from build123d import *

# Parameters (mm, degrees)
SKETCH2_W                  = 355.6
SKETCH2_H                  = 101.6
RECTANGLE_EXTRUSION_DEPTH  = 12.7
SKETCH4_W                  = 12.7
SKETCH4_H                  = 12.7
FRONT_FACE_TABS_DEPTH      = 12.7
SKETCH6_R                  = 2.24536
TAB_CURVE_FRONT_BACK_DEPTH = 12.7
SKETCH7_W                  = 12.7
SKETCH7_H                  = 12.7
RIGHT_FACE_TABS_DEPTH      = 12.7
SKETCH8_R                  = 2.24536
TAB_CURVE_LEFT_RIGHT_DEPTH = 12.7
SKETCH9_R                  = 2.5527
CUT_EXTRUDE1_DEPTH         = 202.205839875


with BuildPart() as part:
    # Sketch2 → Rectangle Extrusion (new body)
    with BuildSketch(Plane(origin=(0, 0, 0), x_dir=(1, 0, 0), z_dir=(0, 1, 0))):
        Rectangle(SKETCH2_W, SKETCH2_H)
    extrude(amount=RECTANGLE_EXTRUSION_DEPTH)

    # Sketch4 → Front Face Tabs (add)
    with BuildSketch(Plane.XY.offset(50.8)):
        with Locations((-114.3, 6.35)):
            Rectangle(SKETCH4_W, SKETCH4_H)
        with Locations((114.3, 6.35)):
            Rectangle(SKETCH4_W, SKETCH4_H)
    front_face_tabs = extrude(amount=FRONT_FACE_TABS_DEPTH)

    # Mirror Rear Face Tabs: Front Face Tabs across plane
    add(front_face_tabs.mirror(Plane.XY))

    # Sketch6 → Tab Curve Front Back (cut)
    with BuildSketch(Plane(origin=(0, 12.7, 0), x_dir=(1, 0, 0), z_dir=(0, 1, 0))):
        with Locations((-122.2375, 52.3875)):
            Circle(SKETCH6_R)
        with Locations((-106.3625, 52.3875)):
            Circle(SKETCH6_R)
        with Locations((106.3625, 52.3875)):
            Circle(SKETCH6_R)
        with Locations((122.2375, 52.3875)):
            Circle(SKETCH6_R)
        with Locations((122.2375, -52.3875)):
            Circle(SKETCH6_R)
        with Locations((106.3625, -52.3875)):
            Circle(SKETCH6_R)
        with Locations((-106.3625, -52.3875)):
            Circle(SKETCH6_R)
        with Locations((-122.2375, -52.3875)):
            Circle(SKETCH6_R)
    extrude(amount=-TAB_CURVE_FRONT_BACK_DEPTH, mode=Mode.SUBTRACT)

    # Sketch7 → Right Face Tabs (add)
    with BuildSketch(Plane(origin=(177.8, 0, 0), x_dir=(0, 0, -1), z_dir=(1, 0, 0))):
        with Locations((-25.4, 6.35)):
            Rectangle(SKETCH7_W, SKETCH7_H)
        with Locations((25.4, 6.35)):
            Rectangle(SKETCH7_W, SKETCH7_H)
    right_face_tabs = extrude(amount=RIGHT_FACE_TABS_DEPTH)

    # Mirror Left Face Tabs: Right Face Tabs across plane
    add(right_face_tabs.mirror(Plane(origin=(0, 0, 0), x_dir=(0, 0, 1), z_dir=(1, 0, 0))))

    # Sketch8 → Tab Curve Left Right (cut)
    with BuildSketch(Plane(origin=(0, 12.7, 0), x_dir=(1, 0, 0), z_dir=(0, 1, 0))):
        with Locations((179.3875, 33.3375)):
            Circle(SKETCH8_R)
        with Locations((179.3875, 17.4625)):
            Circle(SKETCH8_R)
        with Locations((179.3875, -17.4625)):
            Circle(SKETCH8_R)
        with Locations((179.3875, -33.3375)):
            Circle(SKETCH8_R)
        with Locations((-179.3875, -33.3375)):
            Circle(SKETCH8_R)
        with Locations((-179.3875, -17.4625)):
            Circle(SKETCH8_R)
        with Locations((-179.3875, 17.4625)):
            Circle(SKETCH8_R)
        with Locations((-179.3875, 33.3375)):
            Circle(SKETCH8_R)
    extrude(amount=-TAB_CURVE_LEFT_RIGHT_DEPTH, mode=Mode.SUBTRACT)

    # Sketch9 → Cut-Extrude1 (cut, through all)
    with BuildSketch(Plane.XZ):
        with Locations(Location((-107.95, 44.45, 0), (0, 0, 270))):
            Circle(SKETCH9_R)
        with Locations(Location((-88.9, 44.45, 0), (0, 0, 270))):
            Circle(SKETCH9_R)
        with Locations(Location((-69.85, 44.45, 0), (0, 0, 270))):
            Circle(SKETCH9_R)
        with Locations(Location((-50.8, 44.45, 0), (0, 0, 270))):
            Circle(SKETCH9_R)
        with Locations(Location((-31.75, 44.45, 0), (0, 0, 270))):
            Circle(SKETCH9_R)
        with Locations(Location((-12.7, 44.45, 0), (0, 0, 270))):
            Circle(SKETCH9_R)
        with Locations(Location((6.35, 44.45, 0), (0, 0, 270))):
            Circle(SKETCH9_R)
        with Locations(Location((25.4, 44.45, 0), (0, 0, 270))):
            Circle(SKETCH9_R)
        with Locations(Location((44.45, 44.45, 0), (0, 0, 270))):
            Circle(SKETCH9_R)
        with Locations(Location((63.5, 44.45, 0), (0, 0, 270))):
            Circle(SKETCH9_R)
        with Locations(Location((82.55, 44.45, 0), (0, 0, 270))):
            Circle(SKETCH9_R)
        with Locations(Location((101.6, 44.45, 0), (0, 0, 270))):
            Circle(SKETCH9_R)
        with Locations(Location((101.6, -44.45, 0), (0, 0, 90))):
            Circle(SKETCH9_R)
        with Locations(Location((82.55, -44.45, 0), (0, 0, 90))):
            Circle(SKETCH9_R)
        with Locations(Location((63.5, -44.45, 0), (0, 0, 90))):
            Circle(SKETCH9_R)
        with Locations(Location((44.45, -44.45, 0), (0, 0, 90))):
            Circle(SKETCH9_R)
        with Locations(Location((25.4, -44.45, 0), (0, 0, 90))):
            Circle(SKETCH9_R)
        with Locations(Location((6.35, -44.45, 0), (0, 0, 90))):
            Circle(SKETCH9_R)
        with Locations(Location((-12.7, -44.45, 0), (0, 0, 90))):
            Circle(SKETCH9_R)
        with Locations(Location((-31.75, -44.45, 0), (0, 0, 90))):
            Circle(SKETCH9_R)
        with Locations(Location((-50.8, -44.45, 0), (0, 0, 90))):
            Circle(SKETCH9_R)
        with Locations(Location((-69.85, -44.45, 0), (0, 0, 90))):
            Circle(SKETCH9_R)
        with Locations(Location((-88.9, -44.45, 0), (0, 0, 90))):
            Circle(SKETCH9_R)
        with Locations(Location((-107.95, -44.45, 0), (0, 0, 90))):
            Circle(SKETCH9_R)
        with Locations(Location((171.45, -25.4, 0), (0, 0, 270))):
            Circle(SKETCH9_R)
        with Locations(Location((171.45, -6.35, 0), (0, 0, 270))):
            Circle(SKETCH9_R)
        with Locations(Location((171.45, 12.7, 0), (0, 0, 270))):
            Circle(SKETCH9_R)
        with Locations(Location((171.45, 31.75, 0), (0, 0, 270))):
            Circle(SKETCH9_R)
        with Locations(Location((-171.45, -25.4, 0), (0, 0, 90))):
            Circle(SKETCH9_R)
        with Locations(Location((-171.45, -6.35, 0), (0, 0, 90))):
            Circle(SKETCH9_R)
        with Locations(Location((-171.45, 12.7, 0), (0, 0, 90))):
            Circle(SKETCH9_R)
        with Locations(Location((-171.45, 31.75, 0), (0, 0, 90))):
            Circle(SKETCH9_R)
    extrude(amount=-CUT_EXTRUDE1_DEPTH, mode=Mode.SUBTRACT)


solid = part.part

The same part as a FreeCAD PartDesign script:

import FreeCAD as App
import Part
import Sketcher

V = App.Vector
Q = App.Units.Quantity


def add_polygon(sketch, points):
    """Adds a closed chain of lines whose ends are joined by coincident constraints."""
    first, n = sketch.GeometryCount, len(points)
    for a, b in zip(points, points[1:] + points[:1]):
        sketch.addGeometry(Part.LineSegment(App.Vector(*a, 0), App.Vector(*b, 0)), False)
    for i in range(n):
        sketch.addConstraint(Sketcher.Constraint("Coincident", first + i, 2, first + (i + 1) % n, 1))

doc = App.newDocument("Part")
params = doc.addObject("Spreadsheet::Sheet", "Params")
for row, (alias, value) in enumerate([
    ("sketch1_width", "14 in"),
    ("sketch1_height", "4 in"),
    ("pad1_length", "0.5 in"),
    ("sketch2_width", "0.5 in"),
    ("pad2_length", "0.5 in"),
    ("pocket1_length", "0.5 in"),
    ("sketch4_width", "0.5 in"),
    ("pad3_length", "0.5 in"),
    ("pocket2_length", "0.5 in"),
    ("sketch6_diameter", "0.201 in"),
], start=1):
    params.set(f"A{row}", alias)
    params.set(f"B{row}", "=" + value)
    params.setAlias(f"B{row}", alias)

body = doc.addObject("PartDesign::Body", "Body")

# Sketch on XZ plane
sketch1 = doc.addObject("Sketcher::SketchObject", "Sketch")
body.addObject(sketch1)
sketch1.AttachmentSupport = (doc.XZ_Plane, [""])
sketch1.MapMode = "FlatFace"
add_polygon(sketch1, [(-177.8, -50.8), (-177.8, 50.8), (177.8, 50.8), (177.8, -50.8)])  # lines 0-3
sketch1.addConstraint([
    Sketcher.Constraint("Vertical", 0),
    Sketcher.Constraint("Horizontal", 1),
    Sketcher.Constraint("Vertical", 2),
    Sketcher.Constraint("Horizontal", 3),
    Sketcher.Constraint("Symmetric", 0, 2, 2, 2, -1, 1),
    Sketcher.Constraint("DistanceX", 1, 1, 1, 2, Q("14 in")),
    Sketcher.Constraint("DistanceY", 0, 1, 0, 2, Q("4 in")),
])
sketch1.setExpression("Constraints[9]", "Params.sketch1_width")
sketch1.setExpression("Constraints[10]", "Params.sketch1_height")
pad1 = doc.addObject("PartDesign::Pad", "Pad")
body.addObject(pad1)
pad1.Profile = sketch1
pad1.setExpression("Length", "Params.pad1_length")
pad1.Reversed = True

# Sketch on XY plane
sketch2 = doc.addObject("Sketcher::SketchObject", "Sketch001")
body.addObject(sketch2)
sketch2.AttachmentSupport = (doc.XY_Plane, [""])
sketch2.MapMode = "FlatFace"
sketch2.AttachmentOffset = App.Placement(V(0, 0, 2 * 25.4), App.Rotation())
add_polygon(sketch2, [(-120.65, 12.7), (-120.65, 0), (-107.95, 0), (-107.95, 12.7)])  # lines 0-3
add_polygon(sketch2, [(107.95, 12.7), (107.95, 0), (120.65, 0), (120.65, 12.7)])  # lines 4-7
sketch2.addConstraint([
    Sketcher.Constraint("Vertical", 0),
    Sketcher.Constraint("Horizontal", 1),
    Sketcher.Constraint("Vertical", 2),
    Sketcher.Constraint("Horizontal", 3),
    Sketcher.Constraint("Vertical", 4),
    Sketcher.Constraint("Horizontal", 5),
    Sketcher.Constraint("Vertical", 6),
    Sketcher.Constraint("Horizontal", 7),
    Sketcher.Constraint("Symmetric", 1, 2, 4, 2, -1, 1),
    Sketcher.Constraint("Symmetric", 0, 2, 5, 2, -2),
    Sketcher.Constraint("Horizontal", 3, 2, 6, 2),
    Sketcher.Constraint("Equal", 7, 0),
    Sketcher.Constraint("DistanceX", 1, 1, 1, 2, Q("0.5 in")),
    Sketcher.Constraint("DistanceX", 0, 2, 4, 2, Q("9 in")),
])
sketch2.setExpression("Constraints[20]", "Params.sketch2_width")
pad2 = doc.addObject("PartDesign::Pad", "Pad001")
body.addObject(pad2)
pad2.Profile = sketch2
pad2.setExpression("Length", "Params.pad2_length")
doc.recompute()

mirrored = doc.addObject("PartDesign::Mirrored", "Mirrored")
body.addObject(mirrored)
mirrored.Originals = [pad2]
mirrored.MirrorPlane = (doc.XY_Plane, [""])
body.Tip = mirrored

# Sketch on XZ plane
sketch3 = doc.addObject("Sketcher::SketchObject", "Sketch002")
body.addObject(sketch3)
sketch3.AttachmentSupport = (doc.XZ_Plane, [""])
sketch3.MapMode = "FlatFace"
sketch3.AttachmentOffset = App.Placement(V(0, 0, -0.5 * 25.4), App.Rotation())
sketch3.addGeometry([
    Part.Circle(V(-122.2375, -52.3875, 0), V(0, 0, 1), 2.24536),  # 0
    Part.Circle(V(-106.3625, -52.3875, 0), V(0, 0, 1), 2.24536),  # 1
    Part.Circle(V(106.3625, -52.3875, 0), V(0, 0, 1), 2.24536),  # 2
    Part.Circle(V(122.2375, -52.3875, 0), V(0, 0, 1), 2.24536),  # 3
    Part.Circle(V(122.2375, 52.3875, 0), V(0, 0, 1), 2.24536),  # 4
    Part.Circle(V(106.3625, 52.3875, 0), V(0, 0, 1), 2.24536),  # 5
    Part.Circle(V(-106.3625, 52.3875, 0), V(0, 0, 1), 2.24536),  # 6
    Part.Circle(V(-122.2375, 52.3875, 0), V(0, 0, 1), 2.24536),  # 7
], False)
sketch3.addConstraint([
    Sketcher.Constraint("Equal", 0, 1),
    Sketcher.Constraint("Equal", 1, 2),
    Sketcher.Constraint("Equal", 2, 3),
    Sketcher.Constraint("Equal", 3, 4),
    Sketcher.Constraint("Equal", 4, 5),
    Sketcher.Constraint("Equal", 5, 6),
    Sketcher.Constraint("Equal", 6, 7),
    Sketcher.Constraint("Symmetric", 0, 3, 4, 3, -1, 1),
    Sketcher.Constraint("Symmetric", 1, 3, 5, 3, -1, 1),
    Sketcher.Constraint("Symmetric", 2, 3, 6, 3, -1, 1),
    Sketcher.Constraint("Symmetric", 3, 3, 7, 3, -1, 1),
    Sketcher.Constraint("Symmetric", 1, 3, 2, 3, -2),
    Sketcher.Constraint("Symmetric", 0, 3, 3, 3, -2),
    Sketcher.Constraint("Horizontal", 0, 3, 1, 3),
    Sketcher.Constraint("DistanceX", 0, 3, 2, 3, Q("9 in")),
    Sketcher.Constraint("Diameter", 0, Q("0.1768 in")),
    Sketcher.Constraint("DistanceX", 0, 3, -1, 1, Q("4.8125 in")),
    Sketcher.Constraint("DistanceY", 0, 3, -1, 1, Q("2.0625 in")),
])
pocket1 = doc.addObject("PartDesign::Pocket", "Pocket")
body.addObject(pocket1)
pocket1.Profile = sketch3
pocket1.setExpression("Length", "Params.pocket1_length")
pocket1.Reversed = True

# Sketch on YZ plane
sketch4 = doc.addObject("Sketcher::SketchObject", "Sketch003")
body.addObject(sketch4)
sketch4.AttachmentSupport = (doc.YZ_Plane, [""])
sketch4.MapMode = "FlatFace"
sketch4.AttachmentOffset = App.Placement(V(0, 0, 7 * 25.4), App.Rotation())
add_polygon(sketch4, [(12.7, 31.75), (0, 31.75), (0, 19.05), (12.7, 19.05)])  # lines 0-3
add_polygon(sketch4, [(12.7, -19.05), (0, -19.05), (0, -31.75), (12.7, -31.75)])  # lines 4-7
sketch4.addConstraint([
    Sketcher.Constraint("Horizontal", 0),
    Sketcher.Constraint("Vertical", 1),
    Sketcher.Constraint("Horizontal", 2),
    Sketcher.Constraint("Vertical", 3),
    Sketcher.Constraint("Horizontal", 4),
    Sketcher.Constraint("Vertical", 5),
    Sketcher.Constraint("Horizontal", 6),
    Sketcher.Constraint("Vertical", 7),
    Sketcher.Constraint("Symmetric", 1, 2, 4, 2, -1, 1),
    Sketcher.Constraint("Symmetric", 0, 2, 5, 2, -1),
    Sketcher.Constraint("Vertical", 3, 2, 6, 2),
    Sketcher.Constraint("Equal", 6, 1),
    Sketcher.Constraint("DistanceX", 0, 2, 0, 1, Q("0.5 in")),
    Sketcher.Constraint("DistanceY", 4, 2, 0, 2, Q("2 in")),
])
sketch4.setExpression("Constraints[20]", "Params.sketch4_width")
pad3 = doc.addObject("PartDesign::Pad", "Pad002")
body.addObject(pad3)
pad3.Profile = sketch4
pad3.setExpression("Length", "Params.pad3_length")
doc.recompute()

mirrored2 = doc.addObject("PartDesign::Mirrored", "Mirrored001")
body.addObject(mirrored2)
mirrored2.Originals = [pad3]
mirrored2.MirrorPlane = (doc.YZ_Plane, [""])
body.Tip = mirrored2

# Sketch on XZ plane
sketch5 = doc.addObject("Sketcher::SketchObject", "Sketch004")
body.addObject(sketch5)
sketch5.AttachmentSupport = (doc.XZ_Plane, [""])
sketch5.MapMode = "FlatFace"
sketch5.AttachmentOffset = App.Placement(V(0, 0, -0.5 * 25.4), App.Rotation())
sketch5.addGeometry([
    Part.Circle(V(179.3875, -33.3375, 0), V(0, 0, 1), 2.24536),  # 0
    Part.Circle(V(179.3875, -17.4625, 0), V(0, 0, 1), 2.24536),  # 1
    Part.Circle(V(179.3875, 17.4625, 0), V(0, 0, 1), 2.24536),  # 2
    Part.Circle(V(179.3875, 33.3375, 0), V(0, 0, 1), 2.24536),  # 3
    Part.Circle(V(-179.3875, 33.3375, 0), V(0, 0, 1), 2.24536),  # 4
    Part.Circle(V(-179.3875, 17.4625, 0), V(0, 0, 1), 2.24536),  # 5
    Part.Circle(V(-179.3875, -17.4625, 0), V(0, 0, 1), 2.24536),  # 6
    Part.Circle(V(-179.3875, -33.3375, 0), V(0, 0, 1), 2.24536),  # 7
], False)
sketch5.addConstraint([
    Sketcher.Constraint("Equal", 0, 1),
    Sketcher.Constraint("Equal", 1, 2),
    Sketcher.Constraint("Equal", 2, 3),
    Sketcher.Constraint("Equal", 3, 4),
    Sketcher.Constraint("Equal", 4, 5),
    Sketcher.Constraint("Equal", 5, 6),
    Sketcher.Constraint("Equal", 6, 7),
    Sketcher.Constraint("Symmetric", 0, 3, 4, 3, -1, 1),
    Sketcher.Constraint("Symmetric", 1, 3, 5, 3, -1, 1),
    Sketcher.Constraint("Symmetric", 2, 3, 6, 3, -1, 1),
    Sketcher.Constraint("Symmetric", 3, 3, 7, 3, -1, 1),
    Sketcher.Constraint("Symmetric", 3, 3, 4, 3, -2),
    Sketcher.Constraint("Symmetric", 2, 3, 5, 3, -2),
    Sketcher.Constraint("Vertical", 0, 3, 1, 3),
    Sketcher.Constraint("DistanceY", 0, 3, 2, 3, Q("2 in")),
    Sketcher.Constraint("Diameter", 0, Q("0.1768 in")),
    Sketcher.Constraint("DistanceX", -1, 1, 0, 3, Q("7.0625 in")),
    Sketcher.Constraint("DistanceY", 0, 3, -1, 1, Q("1.3125 in")),
])
pocket2 = doc.addObject("PartDesign::Pocket", "Pocket001")
body.addObject(pocket2)
pocket2.Profile = sketch5
pocket2.setExpression("Length", "Params.pocket2_length")
pocket2.Reversed = True

# Sketch on XZ plane
sketch6 = doc.addObject("Sketcher::SketchObject", "Sketch005")
body.addObject(sketch6)
sketch6.AttachmentSupport = (doc.XZ_Plane, [""])
sketch6.MapMode = "FlatFace"
sketch6.addGeometry([
    Part.Circle(V(-107.95, 44.45, 0), V(0, 0, 1), 2.5527),  # 0
    Part.Circle(V(-88.9, 44.45, 0), V(0, 0, 1), 2.5527),  # 1
    Part.Circle(V(-69.85, 44.45, 0), V(0, 0, 1), 2.5527),  # 2
    Part.Circle(V(-50.8, 44.45, 0), V(0, 0, 1), 2.5527),  # 3
    Part.Circle(V(-31.75, 44.45, 0), V(0, 0, 1), 2.5527),  # 4
    Part.Circle(V(-12.7, 44.45, 0), V(0, 0, 1), 2.5527),  # 5
    Part.Circle(V(6.35, 44.45, 0), V(0, 0, 1), 2.5527),  # 6
    Part.Circle(V(25.4, 44.45, 0), V(0, 0, 1), 2.5527),  # 7
    Part.Circle(V(44.45, 44.45, 0), V(0, 0, 1), 2.5527),  # 8
    Part.Circle(V(63.5, 44.45, 0), V(0, 0, 1), 2.5527),  # 9
    Part.Circle(V(82.55, 44.45, 0), V(0, 0, 1), 2.5527),  # 10
    Part.Circle(V(101.6, 44.45, 0), V(0, 0, 1), 2.5527),  # 11
    Part.Circle(V(101.6, -44.45, 0), V(0, 0, 1), 2.5527),  # 12
    Part.Circle(V(82.55, -44.45, 0), V(0, 0, 1), 2.5527),  # 13
    Part.Circle(V(63.5, -44.45, 0), V(0, 0, 1), 2.5527),  # 14
    Part.Circle(V(44.45, -44.45, 0), V(0, 0, 1), 2.5527),  # 15
    Part.Circle(V(25.4, -44.45, 0), V(0, 0, 1), 2.5527),  # 16
    Part.Circle(V(6.35, -44.45, 0), V(0, 0, 1), 2.5527),  # 17
    Part.Circle(V(-12.7, -44.45, 0), V(0, 0, 1), 2.5527),  # 18
    Part.Circle(V(-31.75, -44.45, 0), V(0, 0, 1), 2.5527),  # 19
    Part.Circle(V(-50.8, -44.45, 0), V(0, 0, 1), 2.5527),  # 20
    Part.Circle(V(-69.85, -44.45, 0), V(0, 0, 1), 2.5527),  # 21
    Part.Circle(V(-88.9, -44.45, 0), V(0, 0, 1), 2.5527),  # 22
    Part.Circle(V(-107.95, -44.45, 0), V(0, 0, 1), 2.5527),  # 23
    Part.Circle(V(171.45, -25.4, 0), V(0, 0, 1), 2.5527),  # 24
    Part.Circle(V(171.45, -6.35, 0), V(0, 0, 1), 2.5527),  # 25
    Part.Circle(V(171.45, 12.7, 0), V(0, 0, 1), 2.5527),  # 26
    Part.Circle(V(171.45, 31.75, 0), V(0, 0, 1), 2.5527),  # 27
    Part.Circle(V(-171.45, -25.4, 0), V(0, 0, 1), 2.5527),  # 28
    Part.Circle(V(-171.45, -6.35, 0), V(0, 0, 1), 2.5527),  # 29
    Part.Circle(V(-171.45, 12.7, 0), V(0, 0, 1), 2.5527),  # 30
    Part.Circle(V(-171.45, 31.75, 0), V(0, 0, 1), 2.5527),  # 31
], False)
sketch6.addConstraint([
    Sketcher.Constraint("Equal", 0, 1),
    Sketcher.Constraint("Equal", 1, 2),
    Sketcher.Constraint("Equal", 2, 3),
    Sketcher.Constraint("Equal", 3, 4),
    Sketcher.Constraint("Equal", 4, 5),
    Sketcher.Constraint("Equal", 5, 6),
    Sketcher.Constraint("Equal", 6, 7),
    Sketcher.Constraint("Equal", 7, 8),
    Sketcher.Constraint("Equal", 8, 9),
    Sketcher.Constraint("Equal", 9, 10),
    Sketcher.Constraint("Equal", 10, 11),
    Sketcher.Constraint("Equal", 11, 12),
    Sketcher.Constraint("Equal", 12, 13),
    Sketcher.Constraint("Equal", 13, 14),
    Sketcher.Constraint("Equal", 14, 15),
    Sketcher.Constraint("Equal", 15, 16),
    Sketcher.Constraint("Equal", 16, 17),
    Sketcher.Constraint("Equal", 17, 18),
    Sketcher.Constraint("Equal", 18, 19),
    Sketcher.Constraint("Equal", 19, 20),
    Sketcher.Constraint("Equal", 20, 21),
    Sketcher.Constraint("Equal", 21, 22),
    Sketcher.Constraint("Equal", 22, 23),
    Sketcher.Constraint("Equal", 23, 24),
    Sketcher.Constraint("Equal", 24, 25),
    Sketcher.Constraint("Equal", 25, 26),
    Sketcher.Constraint("Equal", 26, 27),
    Sketcher.Constraint("Equal", 27, 28),
    Sketcher.Constraint("Equal", 28, 29),
    Sketcher.Constraint("Equal", 29, 30),
    Sketcher.Constraint("Equal", 30, 31),
    Sketcher.Constraint("Symmetric", 24, 3, 28, 3, -2),
    Sketcher.Constraint("Symmetric", 25, 3, 29, 3, -2),
    Sketcher.Constraint("Symmetric", 26, 3, 30, 3, -2),
    Sketcher.Constraint("Symmetric", 27, 3, 31, 3, -2),
    Sketcher.Constraint("Symmetric", 11, 3, 12, 3, -1),
    Sketcher.Constraint("Symmetric", 10, 3, 13, 3, -1),
    Sketcher.Constraint("Symmetric", 9, 3, 14, 3, -1),
    Sketcher.Constraint("Symmetric", 8, 3, 15, 3, -1),
    Sketcher.Constraint("Symmetric", 7, 3, 16, 3, -1),
    Sketcher.Constraint("Symmetric", 6, 3, 17, 3, -1),
    Sketcher.Constraint("Symmetric", 5, 3, 18, 3, -1),
    Sketcher.Constraint("Symmetric", 4, 3, 19, 3, -1),
    Sketcher.Constraint("Symmetric", 3, 3, 20, 3, -1),
    Sketcher.Constraint("Symmetric", 2, 3, 21, 3, -1),
    Sketcher.Constraint("Symmetric", 1, 3, 22, 3, -1),
    Sketcher.Constraint("Symmetric", 0, 3, 23, 3, -1),
    Sketcher.Constraint("Horizontal", 0, 3, 1, 3),
    Sketcher.Constraint("Horizontal", 1, 3, 2, 3),
    Sketcher.Constraint("Horizontal", 2, 3, 3, 3),
    Sketcher.Constraint("Horizontal", 3, 3, 4, 3),
    Sketcher.Constraint("Horizontal", 4, 3, 5, 3),
    Sketcher.Constraint("Horizontal", 5, 3, 6, 3),
    Sketcher.Constraint("Horizontal", 6, 3, 7, 3),
    Sketcher.Constraint("Horizontal", 7, 3, 8, 3),
    Sketcher.Constraint("Horizontal", 8, 3, 9, 3),
    Sketcher.Constraint("Horizontal", 9, 3, 10, 3),
    Sketcher.Constraint("Horizontal", 10, 3, 11, 3),
    Sketcher.Constraint("Vertical", 24, 3, 25, 3),
    Sketcher.Constraint("Vertical", 25, 3, 26, 3),
    Sketcher.Constraint("Vertical", 26, 3, 27, 3),
    Sketcher.Constraint("Diameter", 0, Q("0.201 in")),
    Sketcher.Constraint("DistanceX", 3, 3, -1, 1, Q("2 in")),
    Sketcher.Constraint("DistanceX", -1, 1, 7, 3, Q("1 in")),
    Sketcher.Constraint("DistanceX", -1, 1, 11, 3, Q("4 in")),
    Sketcher.Constraint("DistanceY", 24, 3, -1, 1, Q("1 in")),
    Sketcher.Constraint("DistanceX", 0, 3, 4, 3, Q("3 in")),
    Sketcher.Constraint("DistanceX", 1, 3, 5, 3, Q("3 in")),
    Sketcher.Constraint("DistanceX", 2, 3, 6, 3, Q("3 in")),
    Sketcher.Constraint("DistanceX", 4, 3, 8, 3, Q("3 in")),
    Sketcher.Constraint("DistanceX", 5, 3, 9, 3, Q("3 in")),
    Sketcher.Constraint("DistanceX", 6, 3, 10, 3, Q("3 in")),
    Sketcher.Constraint("DistanceY", 25, 3, 11, 3, Q("2 in")),
    Sketcher.Constraint("DistanceX", 28, 3, 21, 3, Q("4 in")),
    Sketcher.Constraint("DistanceX", 1, 3, -1, 1, Q("3.5 in")),
    Sketcher.Constraint("DistanceY", -1, 1, 26, 3, Q("0.5 in")),
    Sketcher.Constraint("DistanceX", 0, 3, 2, 3, Q("1.5 in")),
    Sketcher.Constraint("DistanceY", 12, 3, 11, 3, Q("3.5 in")),
    Sketcher.Constraint("DistanceX", 13, 3, 24, 3, Q("3.5 in")),
    Sketcher.Constraint("DistanceY", 25, 3, 27, 3, Q("1.5 in")),
])
sketch6.setExpression("Constraints[61]", "Params.sketch6_diameter")
pocket3 = doc.addObject("PartDesign::Pocket", "Pocket002")
body.addObject(pocket3)
pocket3.Profile = sketch6
pocket3.Type = "ThroughAll"

doc.recompute()
